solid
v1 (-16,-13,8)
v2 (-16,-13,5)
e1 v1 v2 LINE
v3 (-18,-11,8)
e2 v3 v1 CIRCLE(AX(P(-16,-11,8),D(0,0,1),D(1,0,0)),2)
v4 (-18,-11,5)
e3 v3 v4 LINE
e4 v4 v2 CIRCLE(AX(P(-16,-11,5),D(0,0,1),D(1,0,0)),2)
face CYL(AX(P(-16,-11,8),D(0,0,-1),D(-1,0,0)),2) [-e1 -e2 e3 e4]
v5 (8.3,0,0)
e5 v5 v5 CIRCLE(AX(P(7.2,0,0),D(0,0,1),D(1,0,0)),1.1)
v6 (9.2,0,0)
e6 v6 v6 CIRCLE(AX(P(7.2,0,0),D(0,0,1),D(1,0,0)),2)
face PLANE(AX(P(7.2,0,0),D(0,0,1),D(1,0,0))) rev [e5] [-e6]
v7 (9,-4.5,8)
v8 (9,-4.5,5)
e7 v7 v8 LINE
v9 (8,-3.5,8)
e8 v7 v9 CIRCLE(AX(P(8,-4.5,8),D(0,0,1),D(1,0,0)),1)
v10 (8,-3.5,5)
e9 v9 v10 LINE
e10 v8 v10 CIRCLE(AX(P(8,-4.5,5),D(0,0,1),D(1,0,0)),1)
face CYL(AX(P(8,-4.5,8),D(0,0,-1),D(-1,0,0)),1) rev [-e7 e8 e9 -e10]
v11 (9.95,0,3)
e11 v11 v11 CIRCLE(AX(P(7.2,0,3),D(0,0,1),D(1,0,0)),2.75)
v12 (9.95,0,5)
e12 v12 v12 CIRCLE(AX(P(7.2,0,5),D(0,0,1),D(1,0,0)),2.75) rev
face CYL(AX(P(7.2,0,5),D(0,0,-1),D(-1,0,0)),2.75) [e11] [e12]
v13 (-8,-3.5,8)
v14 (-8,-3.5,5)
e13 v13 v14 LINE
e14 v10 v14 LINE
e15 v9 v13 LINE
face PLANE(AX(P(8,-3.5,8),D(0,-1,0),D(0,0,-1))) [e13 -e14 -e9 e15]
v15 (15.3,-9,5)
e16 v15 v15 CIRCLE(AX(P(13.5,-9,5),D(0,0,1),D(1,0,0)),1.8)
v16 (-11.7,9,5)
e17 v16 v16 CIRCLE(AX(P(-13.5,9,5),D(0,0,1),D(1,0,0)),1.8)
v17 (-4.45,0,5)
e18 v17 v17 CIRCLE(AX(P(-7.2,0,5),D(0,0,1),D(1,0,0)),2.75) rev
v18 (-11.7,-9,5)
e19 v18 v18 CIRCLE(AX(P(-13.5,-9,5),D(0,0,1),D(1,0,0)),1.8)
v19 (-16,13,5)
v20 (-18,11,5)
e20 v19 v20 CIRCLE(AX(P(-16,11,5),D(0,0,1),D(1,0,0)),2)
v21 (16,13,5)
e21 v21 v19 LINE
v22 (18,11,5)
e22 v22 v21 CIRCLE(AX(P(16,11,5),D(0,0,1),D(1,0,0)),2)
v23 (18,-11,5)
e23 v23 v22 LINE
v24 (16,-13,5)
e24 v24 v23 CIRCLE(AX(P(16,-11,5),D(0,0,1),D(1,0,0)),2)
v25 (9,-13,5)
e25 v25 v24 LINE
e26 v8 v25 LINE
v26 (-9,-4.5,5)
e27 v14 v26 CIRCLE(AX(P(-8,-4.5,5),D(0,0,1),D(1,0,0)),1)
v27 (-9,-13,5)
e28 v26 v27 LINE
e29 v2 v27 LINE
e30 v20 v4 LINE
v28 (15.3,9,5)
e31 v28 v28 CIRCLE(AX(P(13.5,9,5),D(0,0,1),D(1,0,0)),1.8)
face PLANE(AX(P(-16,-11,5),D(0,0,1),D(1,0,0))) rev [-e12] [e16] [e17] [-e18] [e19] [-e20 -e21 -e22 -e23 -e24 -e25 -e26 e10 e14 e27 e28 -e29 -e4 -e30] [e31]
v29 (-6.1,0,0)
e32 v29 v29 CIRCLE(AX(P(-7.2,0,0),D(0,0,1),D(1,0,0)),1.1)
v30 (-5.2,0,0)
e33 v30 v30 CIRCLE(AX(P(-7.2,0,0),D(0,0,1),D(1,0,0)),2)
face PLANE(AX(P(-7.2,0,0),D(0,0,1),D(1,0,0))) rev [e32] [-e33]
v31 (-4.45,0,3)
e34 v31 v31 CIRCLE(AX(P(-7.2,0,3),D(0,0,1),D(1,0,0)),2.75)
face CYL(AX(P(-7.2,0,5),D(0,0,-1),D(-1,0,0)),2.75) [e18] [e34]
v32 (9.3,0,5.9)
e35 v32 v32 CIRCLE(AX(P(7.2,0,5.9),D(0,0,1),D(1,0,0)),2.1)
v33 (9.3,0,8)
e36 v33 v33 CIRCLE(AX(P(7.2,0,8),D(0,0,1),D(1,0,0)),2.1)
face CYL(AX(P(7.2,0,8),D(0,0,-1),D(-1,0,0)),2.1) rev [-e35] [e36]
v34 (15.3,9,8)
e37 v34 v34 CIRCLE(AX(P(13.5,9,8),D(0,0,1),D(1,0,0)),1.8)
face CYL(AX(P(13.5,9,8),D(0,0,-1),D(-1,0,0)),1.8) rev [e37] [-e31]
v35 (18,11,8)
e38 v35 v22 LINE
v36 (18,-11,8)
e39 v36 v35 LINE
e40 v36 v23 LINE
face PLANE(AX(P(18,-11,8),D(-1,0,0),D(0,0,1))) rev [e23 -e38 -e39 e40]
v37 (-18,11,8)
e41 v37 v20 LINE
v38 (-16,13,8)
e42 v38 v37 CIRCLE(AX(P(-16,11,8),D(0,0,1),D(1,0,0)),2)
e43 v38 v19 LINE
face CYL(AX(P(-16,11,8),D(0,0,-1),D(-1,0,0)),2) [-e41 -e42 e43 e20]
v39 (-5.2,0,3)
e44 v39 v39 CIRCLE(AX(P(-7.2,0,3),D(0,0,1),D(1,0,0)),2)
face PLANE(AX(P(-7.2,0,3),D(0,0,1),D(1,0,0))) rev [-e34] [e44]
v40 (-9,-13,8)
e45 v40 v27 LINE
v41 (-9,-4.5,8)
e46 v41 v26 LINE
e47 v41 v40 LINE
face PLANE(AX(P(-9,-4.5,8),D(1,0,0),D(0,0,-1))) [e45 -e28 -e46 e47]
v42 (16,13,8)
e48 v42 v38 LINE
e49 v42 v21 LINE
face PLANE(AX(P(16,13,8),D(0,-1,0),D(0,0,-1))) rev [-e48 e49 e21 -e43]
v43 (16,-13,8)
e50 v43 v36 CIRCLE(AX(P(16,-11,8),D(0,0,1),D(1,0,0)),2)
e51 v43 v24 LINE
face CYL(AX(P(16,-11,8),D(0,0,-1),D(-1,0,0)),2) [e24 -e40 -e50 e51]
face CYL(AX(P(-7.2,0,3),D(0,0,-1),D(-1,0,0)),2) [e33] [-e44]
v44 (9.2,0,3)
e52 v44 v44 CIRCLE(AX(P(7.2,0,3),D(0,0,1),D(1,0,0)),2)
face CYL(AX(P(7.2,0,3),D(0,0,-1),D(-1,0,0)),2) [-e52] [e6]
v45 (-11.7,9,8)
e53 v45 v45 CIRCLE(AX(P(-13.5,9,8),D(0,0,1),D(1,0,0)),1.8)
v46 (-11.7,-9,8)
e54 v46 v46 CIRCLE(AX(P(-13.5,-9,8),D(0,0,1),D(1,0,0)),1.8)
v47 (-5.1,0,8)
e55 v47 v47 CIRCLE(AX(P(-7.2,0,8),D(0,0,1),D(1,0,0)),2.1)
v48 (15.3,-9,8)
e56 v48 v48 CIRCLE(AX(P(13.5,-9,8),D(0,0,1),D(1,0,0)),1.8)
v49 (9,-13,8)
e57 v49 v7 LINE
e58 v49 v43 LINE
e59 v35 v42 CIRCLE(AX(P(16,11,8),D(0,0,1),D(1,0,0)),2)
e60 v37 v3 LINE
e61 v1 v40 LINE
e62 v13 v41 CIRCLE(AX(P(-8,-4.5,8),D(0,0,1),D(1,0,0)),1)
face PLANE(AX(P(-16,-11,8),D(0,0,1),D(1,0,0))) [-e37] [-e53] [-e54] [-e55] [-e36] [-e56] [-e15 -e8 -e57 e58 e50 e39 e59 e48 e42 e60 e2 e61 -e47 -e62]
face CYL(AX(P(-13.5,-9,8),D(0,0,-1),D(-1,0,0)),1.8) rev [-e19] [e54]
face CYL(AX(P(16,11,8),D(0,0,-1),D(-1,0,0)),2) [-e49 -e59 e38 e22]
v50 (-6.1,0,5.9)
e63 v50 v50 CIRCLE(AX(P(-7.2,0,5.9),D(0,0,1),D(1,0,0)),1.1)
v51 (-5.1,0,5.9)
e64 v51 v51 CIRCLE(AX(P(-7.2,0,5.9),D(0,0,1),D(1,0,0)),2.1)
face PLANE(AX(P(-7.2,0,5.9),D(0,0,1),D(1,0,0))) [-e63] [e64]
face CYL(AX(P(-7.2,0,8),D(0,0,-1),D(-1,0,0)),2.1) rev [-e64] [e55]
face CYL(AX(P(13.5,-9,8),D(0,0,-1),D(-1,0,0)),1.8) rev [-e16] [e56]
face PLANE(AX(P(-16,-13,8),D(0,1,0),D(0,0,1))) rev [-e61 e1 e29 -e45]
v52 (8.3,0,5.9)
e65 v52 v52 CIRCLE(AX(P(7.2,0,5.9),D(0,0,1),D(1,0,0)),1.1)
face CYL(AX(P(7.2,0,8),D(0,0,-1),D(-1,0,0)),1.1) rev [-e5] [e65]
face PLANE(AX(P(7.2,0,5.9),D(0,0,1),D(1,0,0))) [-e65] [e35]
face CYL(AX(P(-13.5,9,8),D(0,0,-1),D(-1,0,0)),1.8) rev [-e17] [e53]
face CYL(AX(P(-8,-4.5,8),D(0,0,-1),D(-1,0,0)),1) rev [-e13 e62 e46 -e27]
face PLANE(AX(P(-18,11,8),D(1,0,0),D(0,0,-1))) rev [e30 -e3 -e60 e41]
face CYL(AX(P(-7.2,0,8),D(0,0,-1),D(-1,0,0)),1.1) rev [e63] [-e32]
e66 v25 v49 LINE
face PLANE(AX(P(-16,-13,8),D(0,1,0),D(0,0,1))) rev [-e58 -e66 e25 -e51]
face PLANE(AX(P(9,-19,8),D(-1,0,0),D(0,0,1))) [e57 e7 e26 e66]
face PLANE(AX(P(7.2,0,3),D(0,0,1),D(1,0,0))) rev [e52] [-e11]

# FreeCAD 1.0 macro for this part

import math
import FreeCAD as App
import Part
import Sketcher

V = App.Vector
Q = App.Units.Quantity

doc = App.newDocument("Part")
params = doc.addObject("Spreadsheet::Sheet", "Params")
for row, (alias, value) in enumerate([
    ("sketch1_radius", "2 mm"),
    ("sketch1_width", "32 mm"),
    ("sketch1_height", "22 mm"),
    ("pad1_length", "3 mm"),
    ("sketch2_radius", "1 mm"),
    ("sketch2_width", "16 mm"),
    ("sketch2_height", "14.5 mm"),
    ("pocket1_length", "3 mm"),
    ("sketch3_diameter", "5.5 mm"),
    ("pad2_length", "2 mm"),
    ("sketch4_diameter", "4 mm"),
    ("pad3_length", "3 mm"),
    ("sketch5_diameter", "2.2 mm"),
    ("pocket2_length", "8 mm"),
    ("sketch6_diameter", "4.2 mm"),
    ("pocket3_length", "2.1 mm"),
    ("sketch7_diameter", "3.6 mm"),
    ("pocket4_length", "3 mm"),
], start=1):
    params.set(f"A{row}", alias)
    params.set(f"B{row}", "=" + value)
    params.setAlias(f"B{row}", alias)

body = doc.addObject("PartDesign::Body", "Body")

sketch1 = body.newObject("Sketcher::SketchObject", "Sketch")
sketch1.AttachmentSupport = (doc.getObject("XY_Plane"), [""])
sketch1.MapMode = "FlatFace"
sketch1.AttachmentOffset = App.Placement(V(0, 0, 5), App.Rotation())
sketch1.addGeometry(Part.LineSegment(V(-16, -13, 0), V(16, -13, 0)), False)
sketch1.addGeometry(Part.ArcOfCircle(Part.Circle(V(16, -11, 0), V(0, 0, 1), 2), math.radians(-90), math.radians(0)), False)
sketch1.addGeometry(Part.LineSegment(V(18, -11, 0), V(18, 11, 0)), False)
sketch1.addGeometry(Part.ArcOfCircle(Part.Circle(V(16, 11, 0), V(0, 0, 1), 2), math.radians(0), math.radians(90)), False)
sketch1.addGeometry(Part.LineSegment(V(16, 13, 0), V(-16, 13, 0)), False)
sketch1.addGeometry(Part.ArcOfCircle(Part.Circle(V(-16, 11, 0), V(0, 0, 1), 2), math.radians(90), math.radians(180)), False)
sketch1.addGeometry(Part.LineSegment(V(-18, 11, 0), V(-18, -11, 0)), False)
sketch1.addGeometry(Part.ArcOfCircle(Part.Circle(V(-16, -11, 0), V(0, 0, 1), 2), math.radians(-180), math.radians(-90)), False)
sketch1.addConstraint(Sketcher.Constraint("Tangent", 0, 2, 1, 1))
sketch1.addConstraint(Sketcher.Constraint("Tangent", 1, 2, 2, 1))
sketch1.addConstraint(Sketcher.Constraint("Tangent", 2, 2, 3, 1))
sketch1.addConstraint(Sketcher.Constraint("Tangent", 3, 2, 4, 1))
sketch1.addConstraint(Sketcher.Constraint("Tangent", 4, 2, 5, 1))
sketch1.addConstraint(Sketcher.Constraint("Tangent", 5, 2, 6, 1))
sketch1.addConstraint(Sketcher.Constraint("Tangent", 6, 2, 7, 1))
sketch1.addConstraint(Sketcher.Constraint("Tangent", 7, 2, 0, 1))
sketch1.addConstraint(Sketcher.Constraint("Horizontal", 0))
sketch1.addConstraint(Sketcher.Constraint("Vertical", 2))
sketch1.addConstraint(Sketcher.Constraint("Horizontal", 4))
sketch1.addConstraint(Sketcher.Constraint("Vertical", 6))
sketch1.addConstraint(Sketcher.Constraint("Equal", 1, 3))
sketch1.addConstraint(Sketcher.Constraint("Equal", 3, 5))
sketch1.addConstraint(Sketcher.Constraint("Equal", 5, 7))
sketch1.addConstraint(Sketcher.Constraint("Symmetric", 1, 3, 5, 3, -1, 1))
sketch1.addConstraint(Sketcher.Constraint("Radius", 1, Q("2 mm")))
sketch1.addConstraint(Sketcher.Constraint("DistanceX", 0, 1, 0, 2, Q("32 mm")))
sketch1.addConstraint(Sketcher.Constraint("DistanceY", 2, 1, 2, 2, Q("22 mm")))
sketch1.setExpression("Constraints[16]", "Params.sketch1_radius")
sketch1.setExpression("Constraints[17]", "Params.sketch1_width")
sketch1.setExpression("Constraints[18]", "Params.sketch1_height")
pad1 = body.newObject("PartDesign::Pad", "Pad")
pad1.Profile = sketch1
pad1.setExpression("Length", "Params.pad1_length")

sketch2 = body.newObject("Sketcher::SketchObject", "Sketch001")
sketch2.AttachmentSupport = (doc.getObject("XY_Plane"), [""])
sketch2.MapMode = "FlatFace"
sketch2.AttachmentOffset = App.Placement(V(0, 0, 5), App.Rotation())
sketch2.addGeometry(Part.LineSegment(V(-8, -20, 0), V(8, -20, 0)), False)
sketch2.addGeometry(Part.ArcOfCircle(Part.Circle(V(8, -19, 0), V(0, 0, 1), 1), math.radians(-90), math.radians(0)), False)
sketch2.addGeometry(Part.LineSegment(V(9, -19, 0), V(9, -4.5, 0)), False)
sketch2.addGeometry(Part.ArcOfCircle(Part.Circle(V(8, -4.5, 0), V(0, 0, 1), 1), math.radians(0), math.radians(90)), False)
sketch2.addGeometry(Part.LineSegment(V(8, -3.5, 0), V(-8, -3.5, 0)), False)
sketch2.addGeometry(Part.ArcOfCircle(Part.Circle(V(-8, -4.5, 0), V(0, 0, 1), 1), math.radians(90), math.radians(180)), False)
sketch2.addGeometry(Part.LineSegment(V(-9, -4.5, 0), V(-9, -19, 0)), False)
sketch2.addGeometry(Part.ArcOfCircle(Part.Circle(V(-8, -19, 0), V(0, 0, 1), 1), math.radians(-180), math.radians(-90)), False)
sketch2.addConstraint(Sketcher.Constraint("Tangent", 0, 2, 1, 1))
sketch2.addConstraint(Sketcher.Constraint("Tangent", 1, 2, 2, 1))
sketch2.addConstraint(Sketcher.Constraint("Tangent", 2, 2, 3, 1))
sketch2.addConstraint(Sketcher.Constraint("Tangent", 3, 2, 4, 1))
sketch2.addConstraint(Sketcher.Constraint("Tangent", 4, 2, 5, 1))
sketch2.addConstraint(Sketcher.Constraint("Tangent", 5, 2, 6, 1))
sketch2.addConstraint(Sketcher.Constraint("Tangent", 6, 2, 7, 1))
sketch2.addConstraint(Sketcher.Constraint("Tangent", 7, 2, 0, 1))
sketch2.addConstraint(Sketcher.Constraint("Horizontal", 0))
sketch2.addConstraint(Sketcher.Constraint("Vertical", 2))
sketch2.addConstraint(Sketcher.Constraint("Horizontal", 4))
sketch2.addConstraint(Sketcher.Constraint("Vertical", 6))
sketch2.addConstraint(Sketcher.Constraint("Equal", 1, 3))
sketch2.addConstraint(Sketcher.Constraint("Equal", 3, 5))
sketch2.addConstraint(Sketcher.Constraint("Equal", 5, 7))
sketch2.addConstraint(Sketcher.Constraint("Radius", 1, Q("1 mm")))
sketch2.addConstraint(Sketcher.Constraint("DistanceX", 0, 1, 0, 2, Q("16 mm")))
sketch2.addConstraint(Sketcher.Constraint("DistanceY", 2, 1, 2, 2, Q("14.5 mm")))
sketch2.addConstraint(Sketcher.Constraint("DistanceX", -1, 1, 1, 3, Q("8 mm")))
sketch2.addConstraint(Sketcher.Constraint("DistanceY", 1, 3, -1, 1, Q("19 mm")))
sketch2.setExpression("Constraints[15]", "Params.sketch2_radius")
sketch2.setExpression("Constraints[16]", "Params.sketch2_width")
sketch2.setExpression("Constraints[17]", "Params.sketch2_height")
pocket1 = body.newObject("PartDesign::Pocket", "Pocket")
pocket1.Profile = sketch2
pocket1.setExpression("Length", "Params.pocket1_length")
pocket1.Reversed = True

sketch3 = body.newObject("Sketcher::SketchObject", "Sketch002")
sketch3.AttachmentSupport = (doc.getObject("XY_Plane"), [""])
sketch3.MapMode = "FlatFace"
sketch3.AttachmentOffset = App.Placement(V(0, 0, 3), App.Rotation())
sketch3.addGeometry(Part.Circle(V(-7.2, 0, 0), V(0, 0, 1), 2.8), False)
sketch3.addGeometry(Part.Circle(V(7.2, 0, 0), V(0, 0, 1), 2.8), False)
sketch3.addConstraint(Sketcher.Constraint("Equal", 0, 1))
sketch3.addConstraint(Sketcher.Constraint("Symmetric", 0, 3, 1, 3, -1, 1))
sketch3.addConstraint(Sketcher.Constraint("PointOnObject", 0, 3, -1))
sketch3.addConstraint(Sketcher.Constraint("Diameter", 0, Q("5.5 mm")))
sketch3.addConstraint(Sketcher.Constraint("DistanceX", 0, 3, -1, 1, Q("7.2 mm")))
sketch3.setExpression("Constraints[3]", "Params.sketch3_diameter")
pad2 = body.newObject("PartDesign::Pad", "Pad001")
pad2.Profile = sketch3
pad2.setExpression("Length", "Params.pad2_length")

sketch4 = body.newObject("Sketcher::SketchObject", "Sketch003")
sketch4.AttachmentSupport = (doc.getObject("XY_Plane"), [""])
sketch4.MapMode = "FlatFace"
sketch4.addGeometry(Part.Circle(V(-7.2, 0, 0), V(0, 0, 1), 2), False)
sketch4.addGeometry(Part.Circle(V(7.2, 0, 0), V(0, 0, 1), 2), False)
sketch4.addConstraint(Sketcher.Constraint("Equal", 0, 1))
sketch4.addConstraint(Sketcher.Constraint("Symmetric", 0, 3, 1, 3, -1, 1))
sketch4.addConstraint(Sketcher.Constraint("PointOnObject", 0, 3, -1))
sketch4.addConstraint(Sketcher.Constraint("Diameter", 0, Q("4 mm")))
sketch4.addConstraint(Sketcher.Constraint("DistanceX", 0, 3, -1, 1, Q("7.2 mm")))
sketch4.setExpression("Constraints[3]", "Params.sketch4_diameter")
pad3 = body.newObject("PartDesign::Pad", "Pad002")
pad3.Profile = sketch4
pad3.setExpression("Length", "Params.pad3_length")

sketch5 = body.newObject("Sketcher::SketchObject", "Sketch004")
sketch5.AttachmentSupport = (doc.getObject("XY_Plane"), [""])
sketch5.MapMode = "FlatFace"
sketch5.addGeometry(Part.Circle(V(-7.2, 0, 0), V(0, 0, 1), 1.1), False)
sketch5.addGeometry(Part.Circle(V(7.2, 0, 0), V(0, 0, 1), 1.1), False)
sketch5.addConstraint(Sketcher.Constraint("Equal", 0, 1))
sketch5.addConstraint(Sketcher.Constraint("Symmetric", 0, 3, 1, 3, -1, 1))
sketch5.addConstraint(Sketcher.Constraint("PointOnObject", 0, 3, -1))
sketch5.addConstraint(Sketcher.Constraint("Diameter", 0, Q("2.2 mm")))
sketch5.addConstraint(Sketcher.Constraint("DistanceX", 0, 3, -1, 1, Q("7.2 mm")))
sketch5.setExpression("Constraints[3]", "Params.sketch5_diameter")
pocket2 = body.newObject("PartDesign::Pocket", "Pocket001")
pocket2.Profile = sketch5
pocket2.setExpression("Length", "Params.pocket2_length")
pocket2.Reversed = True

sketch6 = body.newObject("Sketcher::SketchObject", "Sketch005")
sketch6.AttachmentSupport = (doc.getObject("XY_Plane"), [""])
sketch6.MapMode = "FlatFace"
sketch6.AttachmentOffset = App.Placement(V(0, 0, 5.9), App.Rotation())
sketch6.addGeometry(Part.Circle(V(-7.2, 0, 0), V(0, 0, 1), 2.1), False)
sketch6.addGeometry(Part.Circle(V(7.2, 0, 0), V(0, 0, 1), 2.1), False)
sketch6.addConstraint(Sketcher.Constraint("Equal", 0, 1))
sketch6.addConstraint(Sketcher.Constraint("Symmetric", 0, 3, 1, 3, -1, 1))
sketch6.addConstraint(Sketcher.Constraint("PointOnObject", 0, 3, -1))
sketch6.addConstraint(Sketcher.Constraint("Diameter", 0, Q("4.2 mm")))
sketch6.addConstraint(Sketcher.Constraint("DistanceX", 0, 3, -1, 1, Q("7.2 mm")))
sketch6.setExpression("Constraints[3]", "Params.sketch6_diameter")
pocket3 = body.newObject("PartDesign::Pocket", "Pocket002")
pocket3.Profile = sketch6
pocket3.setExpression("Length", "Params.pocket3_length")
pocket3.Reversed = True

sketch7 = body.newObject("Sketcher::SketchObject", "Sketch006")
sketch7.AttachmentSupport = (doc.getObject("XY_Plane"), [""])
sketch7.MapMode = "FlatFace"
sketch7.AttachmentOffset = App.Placement(V(0, 0, 5), App.Rotation())
sketch7.addGeometry(Part.Circle(V(-13.5, -9, 0), V(0, 0, 1), 1.8), False)
sketch7.addGeometry(Part.Circle(V(-13.5, 9, 0), V(0, 0, 1), 1.8), False)
sketch7.addGeometry(Part.Circle(V(13.5, -9, 0), V(0, 0, 1), 1.8), False)
sketch7.addGeometry(Part.Circle(V(13.5, 9, 0), V(0, 0, 1), 1.8), False)
sketch7.addConstraint(Sketcher.Constraint("Equal", 0, 1))
sketch7.addConstraint(Sketcher.Constraint("Equal", 1, 2))
sketch7.addConstraint(Sketcher.Constraint("Equal", 2, 3))
sketch7.addConstraint(Sketcher.Constraint("Symmetric", 1, 3, 2, 3, -1, 1))
sketch7.addConstraint(Sketcher.Constraint("Symmetric", 0, 3, 3, 3, -1, 1))
sketch7.addConstraint(Sketcher.Constraint("Symmetric", 0, 3, 2, 3, -2))
sketch7.addConstraint(Sketcher.Constraint("Diameter", 0, Q("3.6 mm")))
sketch7.addConstraint(Sketcher.Constraint("DistanceY", 0, 3, -1, 1, Q("9 mm")))
sketch7.addConstraint(Sketcher.Constraint("DistanceX", 0, 3, 2, 3, Q("27 mm")))
sketch7.setExpression("Constraints[6]", "Params.sketch7_diameter")
pocket4 = body.newObject("PartDesign::Pocket", "Pocket003")
pocket4.Profile = sketch7
pocket4.setExpression("Length", "Params.pocket4_length")
pocket4.Reversed = True

doc.recompute()
